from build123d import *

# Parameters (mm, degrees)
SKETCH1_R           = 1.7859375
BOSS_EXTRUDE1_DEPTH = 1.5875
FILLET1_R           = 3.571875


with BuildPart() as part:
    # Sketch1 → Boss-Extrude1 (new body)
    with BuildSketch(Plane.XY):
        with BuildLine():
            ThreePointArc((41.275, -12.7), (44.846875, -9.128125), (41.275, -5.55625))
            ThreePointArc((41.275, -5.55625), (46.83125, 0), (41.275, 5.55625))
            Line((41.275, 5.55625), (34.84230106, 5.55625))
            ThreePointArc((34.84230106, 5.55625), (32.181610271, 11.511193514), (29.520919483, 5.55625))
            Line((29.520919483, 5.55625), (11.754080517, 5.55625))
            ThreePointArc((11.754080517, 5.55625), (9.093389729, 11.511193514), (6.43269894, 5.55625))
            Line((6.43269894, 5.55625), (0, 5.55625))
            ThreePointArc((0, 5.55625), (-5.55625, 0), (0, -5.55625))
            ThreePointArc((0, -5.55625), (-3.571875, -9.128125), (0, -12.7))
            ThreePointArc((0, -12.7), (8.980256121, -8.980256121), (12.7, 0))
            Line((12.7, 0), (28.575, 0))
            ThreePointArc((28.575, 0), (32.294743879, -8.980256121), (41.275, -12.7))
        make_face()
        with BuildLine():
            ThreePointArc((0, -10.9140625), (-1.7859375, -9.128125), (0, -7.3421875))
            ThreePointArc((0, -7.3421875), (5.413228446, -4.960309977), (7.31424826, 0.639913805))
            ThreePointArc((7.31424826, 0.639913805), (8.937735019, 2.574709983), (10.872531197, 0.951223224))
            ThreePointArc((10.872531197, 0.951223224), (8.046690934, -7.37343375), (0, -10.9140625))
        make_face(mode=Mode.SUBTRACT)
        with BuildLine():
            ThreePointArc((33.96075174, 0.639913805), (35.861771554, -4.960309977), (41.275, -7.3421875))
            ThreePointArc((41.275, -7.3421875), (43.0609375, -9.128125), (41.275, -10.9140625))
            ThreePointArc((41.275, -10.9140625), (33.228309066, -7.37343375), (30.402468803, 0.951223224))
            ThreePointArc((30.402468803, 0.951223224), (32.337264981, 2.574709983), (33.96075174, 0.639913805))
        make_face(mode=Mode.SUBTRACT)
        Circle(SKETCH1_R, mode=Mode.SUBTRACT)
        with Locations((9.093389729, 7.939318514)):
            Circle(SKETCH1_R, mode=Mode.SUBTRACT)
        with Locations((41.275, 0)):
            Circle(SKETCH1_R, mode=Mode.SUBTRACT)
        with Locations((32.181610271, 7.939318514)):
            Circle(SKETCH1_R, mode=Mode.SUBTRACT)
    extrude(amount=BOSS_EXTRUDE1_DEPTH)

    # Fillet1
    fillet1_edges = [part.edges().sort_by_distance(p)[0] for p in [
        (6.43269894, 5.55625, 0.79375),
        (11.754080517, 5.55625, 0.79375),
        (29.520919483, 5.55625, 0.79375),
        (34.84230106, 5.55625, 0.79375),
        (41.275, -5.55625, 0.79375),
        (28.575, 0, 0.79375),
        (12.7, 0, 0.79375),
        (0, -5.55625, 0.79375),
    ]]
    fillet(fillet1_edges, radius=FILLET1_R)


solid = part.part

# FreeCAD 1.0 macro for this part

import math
import FreeCAD as App
import Part
import Sketcher

V = App.Vector
Q = App.Units.Quantity


def edges_at(feature, points):
    """Names of the edges that pass closest to the given points."""
    edges = feature.Shape.Edges
    near = lambda p: min(range(len(edges)), key=lambda i: edges[i].distToShape(Part.Vertex(*p))[0])
    return sorted({f"Edge{near(p) + 1}" for p in points})

doc = App.newDocument("Part")
body = doc.addObject("PartDesign::Body", "Body")

sketch1 = doc.addObject("Sketcher::SketchObject", "Sketch")
body.addObject(sketch1)
sketch1.AttachmentSupport = (doc.XY_Plane, [""])
sketch1.MapMode = "FlatFace"
sketch1.addGeometry([
    Part.ArcOfCircle(Part.Circle(V(41.3, -9.1, 0), V(0, 0, 1), 3.6), math.radians(-90), math.radians(90)),
    Part.ArcOfCircle(Part.Circle(V(41.3, 0, 0), V(0, 0, 1), 5.6), math.radians(-90), math.radians(90)),
    Part.LineSegment(V(41.3, 5.6, 0), V(34.8, 5.6, 0)),
    Part.ArcOfCircle(Part.Circle(V(32.2, 7.9, 0), V(0, 0, 1), 3.6), math.radians(-42), math.radians(222)),
    Part.LineSegment(V(29.5, 5.6, 0), V(11.8, 5.6, 0)),
    Part.ArcOfCircle(Part.Circle(V(9.1, 7.9, 0), V(0, 0, 1), 3.6), math.radians(-42), math.radians(222)),
    Part.LineSegment(V(6.4, 5.6, 0), V(0, 5.6, 0)),
    Part.ArcOfCircle(Part.Circle(V(0, 0, 0), V(0, 0, 1), 5.6), math.radians(90), math.radians(270)),
    Part.ArcOfCircle(Part.Circle(V(0, -9.1, 0), V(0, 0, 1), 3.6), math.radians(90), math.radians(270)),
    Part.ArcOfCircle(Part.Circle(V(0, 0, 0), V(0, 0, 1), 12.7), math.radians(-90), math.radians(0)),
    Part.LineSegment(V(12.7, 0, 0), V(28.6, 0, 0)),
    Part.ArcOfCircle(Part.Circle(V(41.3, 0, 0), V(0, 0, 1), 12.7), math.radians(180), math.radians(270)),
    Part.ArcOfCircle(Part.Circle(V(0, 0, 0), V(0, 0, 1), 10.9), math.radians(-90), math.radians(5)),
    Part.ArcOfCircle(Part.Circle(V(0, -9.1, 0), V(0, 0, 1), 1.8), math.radians(90), math.radians(270)),
    Part.ArcOfCircle(Part.Circle(V(0, 0, 0), V(0, 0, 1), 7.3), math.radians(-90), math.radians(5)),
    Part.ArcOfCircle(Part.Circle(V(9.1, 0.8, 0), V(0, 0, 1), 1.8), math.radians(5), math.radians(185)),
    Part.ArcOfCircle(Part.Circle(V(32.2, 0.8, 0), V(0, 0, 1), 1.8), math.radians(-5), math.radians(175)),
    Part.ArcOfCircle(Part.Circle(V(41.3, 0, 0), V(0, 0, 1), 7.3), math.radians(175), math.radians(270)),
    Part.ArcOfCircle(Part.Circle(V(41.3, -9.1, 0), V(0, 0, 1), 1.8), math.radians(-90), math.radians(90)),
    Part.ArcOfCircle(Part.Circle(V(41.3, 0, 0), V(0, 0, 1), 10.9), math.radians(175), math.radians(270)),
    Part.Circle(V(0, 0, 0), V(0, 0, 1), 1.8),
    Part.Circle(V(9.1, 7.9, 0), V(0, 0, 1), 1.8),
    Part.Circle(V(41.3, 0, 0), V(0, 0, 1), 1.8),
    Part.Circle(V(32.2, 7.9, 0), V(0, 0, 1), 1.8),
], False)
sketch1.addConstraint([
    Sketcher.Constraint("Tangent", 0, 2, 1, 1),
    Sketcher.Constraint("Tangent", 1, 2, 2, 1),
    Sketcher.Constraint("Coincident", 2, 2, 3, 1),
    Sketcher.Constraint("Coincident", 3, 2, 4, 1),
    Sketcher.Constraint("Coincident", 4, 2, 5, 1),
    Sketcher.Constraint("Coincident", 5, 2, 6, 1),
    Sketcher.Constraint("Tangent", 6, 2, 7, 1),
    Sketcher.Constraint("Tangent", 7, 2, 8, 1),
    Sketcher.Constraint("Tangent", 8, 2, 9, 1),
    Sketcher.Constraint("Coincident", 9, 2, 10, 1),
    Sketcher.Constraint("Coincident", 10, 2, 11, 1),
    Sketcher.Constraint("Tangent", 11, 2, 0, 1),
    Sketcher.Constraint("Tangent", 12, 1, 13, 2),
    Sketcher.Constraint("Tangent", 13, 1, 14, 1),
    Sketcher.Constraint("Tangent", 14, 2, 15, 2),
    Sketcher.Constraint("Tangent", 15, 1, 12, 2),
    Sketcher.Constraint("Tangent", 16, 1, 17, 1),
    Sketcher.Constraint("Tangent", 17, 2, 18, 2),
    Sketcher.Constraint("Tangent", 18, 1, 19, 2),
    Sketcher.Constraint("Tangent", 19, 1, 16, 2),
    Sketcher.Constraint("Horizontal", 2),
    Sketcher.Constraint("Horizontal", 4),
    Sketcher.Constraint("Horizontal", 6),
    Sketcher.Constraint("Horizontal", 10),
    Sketcher.Constraint("Coincident", 7, 3, -1, 1),
    Sketcher.Constraint("Coincident", 9, 3, -1, 1),
    Sketcher.Constraint("Coincident", 12, 3, -1, 1),
    Sketcher.Constraint("Coincident", 14, 3, -1, 1),
    Sketcher.Constraint("Coincident", 20, 3, -1, 1),
    Sketcher.Constraint("Coincident", 11, 3, 1, 3),
    Sketcher.Constraint("Coincident", 13, 3, 8, 3),
    Sketcher.Constraint("Coincident", 17, 3, 1, 3),
    Sketcher.Constraint("Coincident", 18, 3, 0, 3),
    Sketcher.Constraint("Coincident", 19, 3, 1, 3),
    Sketcher.Constraint("Coincident", 21, 3, 5, 3),
    Sketcher.Constraint("Coincident", 22, 3, 1, 3),
    Sketcher.Constraint("Coincident", 23, 3, 3, 3),
    Sketcher.Constraint("Equal", 0, 3),
    Sketcher.Constraint("Equal", 3, 5),
    Sketcher.Constraint("Equal", 1, 7),
    Sketcher.Constraint("Equal", 5, 8),
    Sketcher.Constraint("Equal", 15, 16),
    Sketcher.Constraint("Equal", 18, 20),
    Sketcher.Constraint("Equal", 20, 21),
    Sketcher.Constraint("Equal", 21, 22),
    Sketcher.Constraint("Equal", 22, 23),
    Sketcher.Constraint("Symmetric", 0, 2, 1, 2, -1),
    Sketcher.Constraint("PointOnObject", 8, 3, -2),
    Sketcher.Constraint("PointOnObject", 9, 2, -1),
    Sketcher.Constraint("Horizontal", 3, 3, 5, 3),
    Sketcher.Constraint("Horizontal", 15, 3, 16, 3),
    Sketcher.Constraint("Horizontal", 2, 2, 3, 2),
    Sketcher.Constraint("Vertical", 5, 3, 15, 3),
    Sketcher.Constraint("Vertical", 3, 3, 16, 3),
    Sketcher.Constraint("Radius", 9, Q("0.5 in")),
    Sketcher.Constraint("Diameter", 20, Q("0.140625 in")),
    Sketcher.Constraint("Radius", 0, Q("0.140625 in")),
    Sketcher.Constraint("DistanceX", 10, 1, 10, 2, Q("0.625 in")),
    Sketcher.Constraint("DistanceY", 15, 3, 5, 3, Q("0.28125 in")),
    Sketcher.Constraint("DistanceX", 2, 2, 2, 1, 6.432699),
])
pad1 = doc.addObject("PartDesign::Pad", "Pad")
body.addObject(pad1)
pad1.Profile = sketch1
pad1.Length = Q("0.0625 in")
doc.recompute()

fillet = doc.addObject("PartDesign::Fillet", "Fillet")
body.addObject(fillet)
fillet.Base = (pad1, edges_at(pad1, [
    (6.433, 5.556, 0.794),
    (11.754, 5.556, 0.794),
    (29.521, 5.556, 0.794),
    (34.842, 5.556, 0.794),
    (41.275, -5.556, 0.794),
    (28.575, 0, 0.794),
    (12.7, 0, 0.794),
    (0, -5.556, 0.794),
]))
fillet.Radius = Q("0.140625 in")

doc.recompute()
